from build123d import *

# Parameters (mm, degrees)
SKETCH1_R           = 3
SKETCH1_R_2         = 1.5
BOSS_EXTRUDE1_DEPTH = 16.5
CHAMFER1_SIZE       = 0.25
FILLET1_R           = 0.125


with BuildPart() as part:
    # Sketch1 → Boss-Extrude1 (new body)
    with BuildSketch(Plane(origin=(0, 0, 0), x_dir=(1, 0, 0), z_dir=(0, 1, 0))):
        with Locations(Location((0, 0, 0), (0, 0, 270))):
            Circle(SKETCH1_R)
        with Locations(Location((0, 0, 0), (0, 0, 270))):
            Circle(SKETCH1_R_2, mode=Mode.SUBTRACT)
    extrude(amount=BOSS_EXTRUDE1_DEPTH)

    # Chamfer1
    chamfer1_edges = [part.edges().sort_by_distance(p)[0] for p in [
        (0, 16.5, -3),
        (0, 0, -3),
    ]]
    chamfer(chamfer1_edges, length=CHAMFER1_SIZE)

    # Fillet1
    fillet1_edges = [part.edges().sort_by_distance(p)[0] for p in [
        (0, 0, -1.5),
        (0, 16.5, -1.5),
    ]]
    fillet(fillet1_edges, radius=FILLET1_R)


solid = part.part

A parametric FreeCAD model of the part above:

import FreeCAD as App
import Part
import Sketcher
Q = App.Units.Quantity


def edges_at(feature, points):
    """Names of the edges that pass closest to the given points."""
    edges = feature.Shape.Edges
    near = lambda p: min(range(len(edges)), key=lambda i: edges[i].distToShape(Part.Vertex(*p))[0])
    return sorted({f"Edge{near(p) + 1}" for p in points})

doc = App.newDocument("Part")
params = doc.addObject("Spreadsheet::Sheet", "Params")
for row, (alias, value) in enumerate([
    ("sketch1_diameter", "6 mm"),
    ("sketch1_diameter2", "3 mm"),
    ("pad1_length", "16.5 mm"),
    ("chamfer_size", "0.25 mm"),
    ("fillet_radius", "0.125 mm"),
], start=1):
    params.set(f"A{row}", alias)
    params.set(f"B{row}", "=" + value)
    params.setAlias(f"B{row}", alias)

body = doc.addObject("PartDesign::Body", "Body")

sketch1 = body.newObject("Sketcher::SketchObject", "Sketch")
sketch1.AttachmentSupport = (doc.getObject("XZ_Plane"), [""])
sketch1.MapMode = "FlatFace"
sketch1.addGeometry([
    Part.Circle(App.Vector(0, 0, 0), App.Vector(0, 0, 1), 3),
    Part.Circle(App.Vector(0, 0, 0), App.Vector(0, 0, 1), 1.5),
], False)
sketch1.addConstraint([
    Sketcher.Constraint("Coincident", 0, 3, -1, 1),
    Sketcher.Constraint("Coincident", 1, 3, -1, 1),
    Sketcher.Constraint("Diameter", 0, Q("6 mm")),
    Sketcher.Constraint("Diameter", 1, Q("3 mm")),
])
sketch1.setExpression("Constraints[2]", "Params.sketch1_diameter")
sketch1.setExpression("Constraints[3]", "Params.sketch1_diameter2")
pad1 = body.newObject("PartDesign::Pad", "Pad")
pad1.Profile = sketch1
pad1.setExpression("Length", "Params.pad1_length")
pad1.Reversed = True
doc.recompute()

chamfer = body.newObject("PartDesign::Chamfer", "Chamfer")
chamfer.Base = (pad1, edges_at(pad1, [(0, 16.5, -3), (0, 0, -3)]))
chamfer.setExpression("Size", "Params.chamfer_size")
doc.recompute()

fillet = body.newObject("PartDesign::Fillet", "Fillet")
fillet.Base = (chamfer, edges_at(chamfer, [(0, 0, -1.5), (0, 16.5, -1.5)]))
fillet.setExpression("Radius", "Params.fillet_radius")

doc.recompute()
